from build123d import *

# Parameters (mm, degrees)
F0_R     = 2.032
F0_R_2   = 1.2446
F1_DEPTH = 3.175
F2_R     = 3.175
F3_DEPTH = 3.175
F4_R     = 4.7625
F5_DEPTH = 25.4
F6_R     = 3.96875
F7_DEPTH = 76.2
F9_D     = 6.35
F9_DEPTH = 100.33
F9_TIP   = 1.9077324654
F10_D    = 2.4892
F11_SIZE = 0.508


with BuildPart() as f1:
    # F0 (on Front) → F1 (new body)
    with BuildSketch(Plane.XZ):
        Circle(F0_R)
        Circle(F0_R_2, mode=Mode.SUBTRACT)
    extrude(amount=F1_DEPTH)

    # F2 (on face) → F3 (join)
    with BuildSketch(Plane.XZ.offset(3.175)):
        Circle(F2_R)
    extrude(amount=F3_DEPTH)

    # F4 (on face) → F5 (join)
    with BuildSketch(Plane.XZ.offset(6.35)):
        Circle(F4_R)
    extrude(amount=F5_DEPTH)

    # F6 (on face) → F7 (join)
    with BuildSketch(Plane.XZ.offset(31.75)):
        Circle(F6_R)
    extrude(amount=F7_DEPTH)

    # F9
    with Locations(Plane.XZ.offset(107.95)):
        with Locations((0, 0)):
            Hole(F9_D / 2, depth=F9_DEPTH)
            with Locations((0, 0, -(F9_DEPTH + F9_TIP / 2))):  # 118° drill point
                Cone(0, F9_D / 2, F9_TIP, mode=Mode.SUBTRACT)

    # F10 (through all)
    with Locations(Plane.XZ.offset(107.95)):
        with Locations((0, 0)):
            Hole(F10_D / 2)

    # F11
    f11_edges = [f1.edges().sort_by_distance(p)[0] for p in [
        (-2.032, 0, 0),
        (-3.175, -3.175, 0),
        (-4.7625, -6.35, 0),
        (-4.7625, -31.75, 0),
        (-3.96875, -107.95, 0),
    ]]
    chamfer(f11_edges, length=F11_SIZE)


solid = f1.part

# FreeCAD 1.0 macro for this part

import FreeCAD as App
import Part
import Sketcher

V = App.Vector
Q = App.Units.Quantity


def edges_at(feature, points):
    """Names of the edges that pass closest to the given points."""
    edges = feature.Shape.Edges
    near = lambda p: min(range(len(edges)), key=lambda i: edges[i].distToShape(Part.Vertex(*p))[0])
    return sorted({f"Edge{near(p) + 1}" for p in points})

doc = App.newDocument("Part")
body = doc.addObject("PartDesign::Body", "Body")

# Sketch on XZ plane
sketch1 = body.newObject("Sketcher::SketchObject", "Sketch")
sketch1.AttachmentSupport = (doc.getObject("XZ_Plane"), [""])
sketch1.MapMode = "FlatFace"
sketch1.addGeometry([
    Part.Circle(V(0, 0, 0), V(0, 0, 1), 2),
    Part.Circle(V(0, 0, 0), V(0, 0, 1), 1.2),
], False)
sketch1.addConstraint([
    Sketcher.Constraint("Coincident", 0, 3, -1, 1),
    Sketcher.Constraint("Coincident", 1, 3, -1, 1),
    Sketcher.Constraint("Diameter", 0, Q("0.16 in")),
    Sketcher.Constraint("Diameter", 1, Q("0.098 in")),
])
pad1 = body.newObject("PartDesign::Pad", "Pad")
pad1.Profile = sketch1
pad1.Length = Q("0.125 in")

# Sketch on XZ plane
sketch2 = body.newObject("Sketcher::SketchObject", "Sketch001")
sketch2.AttachmentSupport = (doc.getObject("XZ_Plane"), [""])
sketch2.MapMode = "FlatFace"
sketch2.AttachmentOffset = App.Placement(V(0, 0, 0.125 * 25.4), App.Rotation())
sketch2.addGeometry(Part.Circle(V(0, 0, 0), V(0, 0, 1), 3.2), False)
sketch2.addConstraint([
    Sketcher.Constraint("Coincident", 0, 3, -1, 1),
    Sketcher.Constraint("Diameter", 0, Q("0.25 in")),
])
pad2 = body.newObject("PartDesign::Pad", "Pad001")
pad2.Profile = sketch2
pad2.Length = Q("0.125 in")

# Sketch on XZ plane
sketch3 = body.newObject("Sketcher::SketchObject", "Sketch002")
sketch3.AttachmentSupport = (doc.getObject("XZ_Plane"), [""])
sketch3.MapMode = "FlatFace"
sketch3.AttachmentOffset = App.Placement(V(0, 0, 0.25 * 25.4), App.Rotation())
sketch3.addGeometry(Part.Circle(V(0, 0, 0), V(0, 0, 1), 4.8), False)
sketch3.addConstraint([
    Sketcher.Constraint("Coincident", 0, 3, -1, 1),
    Sketcher.Constraint("Diameter", 0, Q("0.375 in")),
])
pad3 = body.newObject("PartDesign::Pad", "Pad002")
pad3.Profile = sketch3
pad3.Length = Q("1 in")

# Sketch on XZ plane
sketch4 = body.newObject("Sketcher::SketchObject", "Sketch003")
sketch4.AttachmentSupport = (doc.getObject("XZ_Plane"), [""])
sketch4.MapMode = "FlatFace"
sketch4.AttachmentOffset = App.Placement(V(0, 0, 1.25 * 25.4), App.Rotation())
sketch4.addGeometry(Part.Circle(V(0, 0, 0), V(0, 0, 1), 4), False)
sketch4.addConstraint([
    Sketcher.Constraint("Coincident", 0, 3, -1, 1),
    Sketcher.Constraint("Diameter", 0, Q("0.3125 in")),
])
pad4 = body.newObject("PartDesign::Pad", "Pad003")
pad4.Profile = sketch4
pad4.Length = Q("3 in")

# Sketch on XZ plane
sketch5 = body.newObject("Sketcher::SketchObject", "Sketch004")
sketch5.AttachmentSupport = (doc.getObject("XZ_Plane"), [""])
sketch5.MapMode = "FlatFace"
sketch5.AttachmentOffset = App.Placement(V(0, 0, 4.25 * 25.4), App.Rotation())
sketch5.addGeometry(Part.Circle(V(0, 0, 0), V(0, 0, 1), 3.2), False)
sketch5.addConstraint([
    Sketcher.Constraint("Coincident", 0, 3, -1, 1),
    Sketcher.Constraint("Diameter", 0, Q("0.25 in")),
])
doc.recompute()
hole = body.newObject("PartDesign::Hole", "Hole")
hole.Profile = sketch5
hole.ThreadType = "None"
hole.Diameter = Q("0.25 in")
hole.DepthType = "Dimension"
hole.Depth = Q("3.95 in")
hole.DrillPoint = "Angled"
hole.DrillPointAngle = 118

# Sketch on XZ plane
sketch6 = body.newObject("Sketcher::SketchObject", "Sketch005")
sketch6.AttachmentSupport = (doc.getObject("XZ_Plane"), [""])
sketch6.MapMode = "FlatFace"
sketch6.AttachmentOffset = App.Placement(V(0, 0, 4.25 * 25.4), App.Rotation())
sketch6.addGeometry(Part.Circle(V(0, 0, 0), V(0, 0, 1), 1.2), False)
sketch6.addConstraint([
    Sketcher.Constraint("Coincident", 0, 3, -1, 1),
    Sketcher.Constraint("Diameter", 0, Q("0.098 in")),
])
doc.recompute()
hole2 = body.newObject("PartDesign::Hole", "Hole001")
hole2.Profile = sketch6
hole2.ThreadType = "None"
hole2.Diameter = Q("0.098 in")
hole2.DepthType = "ThroughAll"
doc.recompute()

chamfer = body.newObject("PartDesign::Chamfer", "Chamfer")
chamfer.Base = (hole2, edges_at(hole2, [
    (-2.032, 0, 0),
    (-3.175, -3.175, 0),
    (-4.763, -6.35, 0),
    (-4.763, -31.75, 0),
    (-3.969, -107.95, 0),
]))
chamfer.Size = Q("0.02 in")

doc.recompute()
